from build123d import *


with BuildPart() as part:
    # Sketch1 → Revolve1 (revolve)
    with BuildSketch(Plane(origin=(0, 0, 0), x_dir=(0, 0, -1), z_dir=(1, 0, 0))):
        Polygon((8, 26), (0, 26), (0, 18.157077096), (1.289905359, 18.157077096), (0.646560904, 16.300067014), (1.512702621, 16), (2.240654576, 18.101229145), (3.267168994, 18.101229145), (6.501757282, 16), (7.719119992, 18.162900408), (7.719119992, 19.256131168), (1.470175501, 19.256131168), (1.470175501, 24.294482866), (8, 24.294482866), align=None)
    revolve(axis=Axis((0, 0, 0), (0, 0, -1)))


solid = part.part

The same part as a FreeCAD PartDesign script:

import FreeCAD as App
import Part
import Sketcher
from FreeCAD import Vector


def add_polygon(sketch, points):
    """Adds a closed chain of lines whose ends are joined by coincident constraints."""
    first, n = sketch.GeometryCount, len(points)
    for a, b in zip(points, points[1:] + points[:1]):
        sketch.addGeometry(Part.LineSegment(App.Vector(*a, 0), App.Vector(*b, 0)), False)
    for i in range(n):
        sketch.addConstraint(Sketcher.Constraint("Coincident", first + i, 2, first + (i + 1) % n, 1))

doc = App.newDocument("Part")
body = doc.addObject("PartDesign::Body", "Body")

# Sketch on YZ plane
sketch1 = doc.addObject("Sketcher::SketchObject", "Sketch")
body.addObject(sketch1)
sketch1.AttachmentSupport = (doc.YZ_Plane, [""])
sketch1.MapMode = "FlatFace"
add_polygon(sketch1, [(26, -8), (26, 0), (18.157077, 0), (18.157077, -1.289905), (16.300067, -0.646561), (16, -1.512703), (18.101229, -2.240655), (18.101229, -3.267169), (16, -6.501757), (18.1629, -7.71912), (19.256131, -7.71912), (19.256131, -1.470176), (24.294483, -1.470176), (24.294483, -8)])  # lines 0-13
sketch1.addConstraint([
    Sketcher.Constraint("Vertical", 0),
    Sketcher.Constraint("Horizontal", 1),
    Sketcher.Constraint("Vertical", 2),
    Sketcher.Constraint("Vertical", 6),
    Sketcher.Constraint("Horizontal", 9),
    Sketcher.Constraint("Vertical", 10),
    Sketcher.Constraint("Horizontal", 11),
    Sketcher.Constraint("Vertical", 12),
    Sketcher.Constraint("Horizontal", 13),
    Sketcher.Constraint("PointOnObject", 0, 2, -1),
    Sketcher.Constraint("Perpendicular", 3, 4),
    Sketcher.Constraint("Perpendicular", 4, 5),
    Sketcher.Constraint("Vertical", 4, 2, 7, 2),
    Sketcher.Constraint("DistanceY", 0, 1, 0, 2, 8.0),
    Sketcher.Constraint("DistanceX", -1, 1, 0, 2, 26.0),
    Sketcher.Constraint("DistanceX", -1, 1, 4, 2, 16.0),
    Sketcher.Constraint("DistanceX", 9, 1, 9, 2, 1.093231),
    Sketcher.Constraint("DistanceX", 11, 1, 11, 2, 5.038352),
    Sketcher.Constraint("DistanceX", -1, 1, 8, 2, 18.1629),
    Sketcher.Constraint("DistanceX", 1, 2, 1, 1, 7.842923),
    Sketcher.Constraint("DistanceY", 2, 2, 2, 1, 1.289905),
    Sketcher.Constraint("DistanceY", 6, 2, 6, 1, 1.026514),
    Sketcher.Constraint("DistanceY", 10, 1, 10, 2, 6.248944),
    Sketcher.Constraint("DistanceY", 12, 2, 12, 1, 6.529824),
    Sketcher.Constraint("DistanceY", 3, 2, -1, 1, 0.646561),
    Sketcher.Constraint("DistanceX", -1, 1, 5, 2, 18.101229),
    Sketcher.Constraint("DistanceY", 6, 2, -1, 1, 3.267169),
    Sketcher.Constraint("DistanceY", 7, 2, 6, 2, 3.234588),
])
revolution = doc.addObject("PartDesign::Revolution", "Revolution")
body.addObject(revolution)
revolution.Profile = sketch1
revolution.ReferenceAxis = (sketch1, ["V_Axis"])
revolution.Angle = 360

doc.recompute()
